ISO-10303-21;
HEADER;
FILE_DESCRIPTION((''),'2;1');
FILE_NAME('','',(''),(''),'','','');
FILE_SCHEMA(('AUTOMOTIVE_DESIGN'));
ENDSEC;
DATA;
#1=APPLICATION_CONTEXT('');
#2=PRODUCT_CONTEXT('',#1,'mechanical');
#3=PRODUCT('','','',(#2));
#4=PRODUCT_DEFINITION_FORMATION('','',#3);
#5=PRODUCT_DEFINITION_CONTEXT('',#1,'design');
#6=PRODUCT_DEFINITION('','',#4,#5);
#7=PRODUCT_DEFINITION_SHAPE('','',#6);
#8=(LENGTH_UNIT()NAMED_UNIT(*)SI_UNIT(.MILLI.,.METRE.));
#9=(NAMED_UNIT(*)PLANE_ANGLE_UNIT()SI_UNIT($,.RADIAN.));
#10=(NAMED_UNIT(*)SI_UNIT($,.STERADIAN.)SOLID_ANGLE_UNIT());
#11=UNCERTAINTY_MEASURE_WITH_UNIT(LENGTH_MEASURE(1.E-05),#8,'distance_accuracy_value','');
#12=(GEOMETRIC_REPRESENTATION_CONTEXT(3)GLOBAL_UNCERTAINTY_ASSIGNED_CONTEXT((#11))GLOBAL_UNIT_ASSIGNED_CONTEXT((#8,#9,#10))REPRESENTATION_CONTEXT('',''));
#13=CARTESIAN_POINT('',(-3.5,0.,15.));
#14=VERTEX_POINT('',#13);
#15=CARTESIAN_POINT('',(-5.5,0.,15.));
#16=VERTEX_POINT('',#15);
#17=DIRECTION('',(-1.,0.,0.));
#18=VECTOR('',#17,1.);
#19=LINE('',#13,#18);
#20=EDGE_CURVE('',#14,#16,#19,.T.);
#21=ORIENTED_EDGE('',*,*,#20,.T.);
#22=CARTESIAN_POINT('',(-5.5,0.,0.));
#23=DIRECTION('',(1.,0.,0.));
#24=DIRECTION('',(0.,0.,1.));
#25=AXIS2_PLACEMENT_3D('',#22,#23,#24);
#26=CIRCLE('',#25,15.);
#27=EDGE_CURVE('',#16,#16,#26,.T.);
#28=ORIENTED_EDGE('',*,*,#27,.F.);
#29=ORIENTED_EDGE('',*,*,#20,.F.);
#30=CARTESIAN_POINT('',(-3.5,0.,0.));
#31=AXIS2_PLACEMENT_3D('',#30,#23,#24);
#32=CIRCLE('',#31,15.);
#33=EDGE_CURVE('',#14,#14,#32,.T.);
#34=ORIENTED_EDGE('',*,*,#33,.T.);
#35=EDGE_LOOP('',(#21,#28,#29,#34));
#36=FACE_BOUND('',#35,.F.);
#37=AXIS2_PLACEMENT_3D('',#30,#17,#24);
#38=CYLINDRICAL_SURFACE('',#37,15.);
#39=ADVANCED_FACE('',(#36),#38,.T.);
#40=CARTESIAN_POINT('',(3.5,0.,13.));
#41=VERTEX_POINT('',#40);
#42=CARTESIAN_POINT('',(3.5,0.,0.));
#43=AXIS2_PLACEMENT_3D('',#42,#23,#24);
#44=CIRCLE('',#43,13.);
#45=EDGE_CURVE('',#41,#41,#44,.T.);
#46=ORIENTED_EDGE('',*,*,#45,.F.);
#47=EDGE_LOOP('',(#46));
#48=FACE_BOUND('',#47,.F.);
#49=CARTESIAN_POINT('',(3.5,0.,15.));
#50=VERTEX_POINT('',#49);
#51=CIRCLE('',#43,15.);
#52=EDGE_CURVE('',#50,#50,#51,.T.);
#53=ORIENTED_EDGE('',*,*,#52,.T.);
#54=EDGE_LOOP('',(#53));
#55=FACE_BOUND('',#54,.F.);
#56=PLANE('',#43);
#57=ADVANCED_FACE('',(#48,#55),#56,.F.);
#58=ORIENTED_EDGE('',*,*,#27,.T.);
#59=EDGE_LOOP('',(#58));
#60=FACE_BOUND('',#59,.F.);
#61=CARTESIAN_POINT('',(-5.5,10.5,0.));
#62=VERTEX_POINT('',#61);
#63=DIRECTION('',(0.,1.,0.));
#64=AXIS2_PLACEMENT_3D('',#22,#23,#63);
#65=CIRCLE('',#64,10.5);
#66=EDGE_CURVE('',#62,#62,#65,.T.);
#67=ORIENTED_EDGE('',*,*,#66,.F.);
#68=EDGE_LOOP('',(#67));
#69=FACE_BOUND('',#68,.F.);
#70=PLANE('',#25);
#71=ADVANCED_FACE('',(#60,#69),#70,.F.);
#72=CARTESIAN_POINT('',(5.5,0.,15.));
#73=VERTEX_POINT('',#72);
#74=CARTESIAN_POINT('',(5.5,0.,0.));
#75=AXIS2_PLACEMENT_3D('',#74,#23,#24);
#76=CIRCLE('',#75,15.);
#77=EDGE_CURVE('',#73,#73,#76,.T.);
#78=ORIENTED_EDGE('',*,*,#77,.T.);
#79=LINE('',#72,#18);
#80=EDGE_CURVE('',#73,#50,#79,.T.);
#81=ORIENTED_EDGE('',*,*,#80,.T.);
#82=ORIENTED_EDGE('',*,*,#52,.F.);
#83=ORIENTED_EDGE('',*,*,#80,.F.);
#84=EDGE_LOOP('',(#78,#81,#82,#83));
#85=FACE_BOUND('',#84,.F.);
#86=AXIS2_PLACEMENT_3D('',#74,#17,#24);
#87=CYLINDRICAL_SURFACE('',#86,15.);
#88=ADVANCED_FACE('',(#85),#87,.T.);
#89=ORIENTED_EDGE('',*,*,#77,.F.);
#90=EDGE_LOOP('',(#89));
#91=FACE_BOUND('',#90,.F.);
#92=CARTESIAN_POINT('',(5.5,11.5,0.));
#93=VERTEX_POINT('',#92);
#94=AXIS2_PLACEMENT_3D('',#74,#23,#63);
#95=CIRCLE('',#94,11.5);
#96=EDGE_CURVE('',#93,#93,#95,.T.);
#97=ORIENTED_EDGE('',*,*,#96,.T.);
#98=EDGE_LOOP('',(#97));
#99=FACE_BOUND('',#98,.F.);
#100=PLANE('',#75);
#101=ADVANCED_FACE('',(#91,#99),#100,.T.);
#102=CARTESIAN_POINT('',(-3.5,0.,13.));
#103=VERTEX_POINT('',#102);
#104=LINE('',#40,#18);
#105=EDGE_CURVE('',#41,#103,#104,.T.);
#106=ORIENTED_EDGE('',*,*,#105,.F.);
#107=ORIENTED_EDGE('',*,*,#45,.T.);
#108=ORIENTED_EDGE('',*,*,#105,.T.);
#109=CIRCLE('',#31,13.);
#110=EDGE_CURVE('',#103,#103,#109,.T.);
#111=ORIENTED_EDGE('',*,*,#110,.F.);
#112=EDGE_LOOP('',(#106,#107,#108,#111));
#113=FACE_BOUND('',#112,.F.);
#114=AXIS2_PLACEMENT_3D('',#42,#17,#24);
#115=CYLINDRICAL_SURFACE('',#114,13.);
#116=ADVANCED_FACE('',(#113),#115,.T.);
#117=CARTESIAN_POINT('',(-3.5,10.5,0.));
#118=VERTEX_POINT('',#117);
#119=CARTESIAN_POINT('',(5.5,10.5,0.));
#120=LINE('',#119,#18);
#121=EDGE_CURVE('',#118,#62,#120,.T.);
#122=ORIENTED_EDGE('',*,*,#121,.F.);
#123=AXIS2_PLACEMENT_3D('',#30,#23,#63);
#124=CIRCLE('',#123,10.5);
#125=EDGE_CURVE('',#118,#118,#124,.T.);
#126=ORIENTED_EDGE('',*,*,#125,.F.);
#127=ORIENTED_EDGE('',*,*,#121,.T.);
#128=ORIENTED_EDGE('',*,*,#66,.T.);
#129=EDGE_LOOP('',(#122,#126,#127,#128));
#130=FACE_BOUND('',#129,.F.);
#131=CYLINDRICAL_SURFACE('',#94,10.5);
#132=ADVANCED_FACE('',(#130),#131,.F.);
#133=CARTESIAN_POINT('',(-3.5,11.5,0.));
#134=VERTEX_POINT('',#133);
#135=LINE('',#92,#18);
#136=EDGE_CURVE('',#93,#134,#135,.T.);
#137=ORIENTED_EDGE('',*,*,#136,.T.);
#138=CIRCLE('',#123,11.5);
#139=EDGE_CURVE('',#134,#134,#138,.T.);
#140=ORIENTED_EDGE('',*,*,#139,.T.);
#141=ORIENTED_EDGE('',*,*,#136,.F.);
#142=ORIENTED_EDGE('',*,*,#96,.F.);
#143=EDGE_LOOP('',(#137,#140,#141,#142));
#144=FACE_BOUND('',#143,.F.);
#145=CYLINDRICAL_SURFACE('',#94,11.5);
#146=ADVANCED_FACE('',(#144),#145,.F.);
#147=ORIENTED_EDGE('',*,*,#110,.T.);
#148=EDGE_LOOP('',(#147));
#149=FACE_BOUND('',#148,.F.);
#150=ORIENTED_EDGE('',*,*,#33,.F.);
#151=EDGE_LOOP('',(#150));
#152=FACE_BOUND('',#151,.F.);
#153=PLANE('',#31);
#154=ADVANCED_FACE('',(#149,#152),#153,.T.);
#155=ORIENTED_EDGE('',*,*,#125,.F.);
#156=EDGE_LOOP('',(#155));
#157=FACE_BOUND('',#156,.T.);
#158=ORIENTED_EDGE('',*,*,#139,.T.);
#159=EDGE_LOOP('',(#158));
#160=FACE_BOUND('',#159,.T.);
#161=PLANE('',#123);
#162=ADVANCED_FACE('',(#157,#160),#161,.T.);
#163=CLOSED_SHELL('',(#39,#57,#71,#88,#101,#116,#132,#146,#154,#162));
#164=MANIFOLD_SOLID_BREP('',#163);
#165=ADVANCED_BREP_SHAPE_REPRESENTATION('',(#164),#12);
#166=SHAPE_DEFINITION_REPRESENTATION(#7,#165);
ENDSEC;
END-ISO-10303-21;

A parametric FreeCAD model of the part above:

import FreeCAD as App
import Part
import Sketcher
Q = App.Units.Quantity

doc = App.newDocument("Part")
body = doc.addObject("PartDesign::Body", "Body")

# Sketch on XZ plane
sketch1 = body.newObject("Sketcher::SketchObject", "Sketch")
sketch1.AttachmentSupport = (doc.getObject("XZ_Plane"), [""])
sketch1.MapMode = "FlatFace"
sketch1.addGeometry([
    Part.LineSegment(App.Vector(-5.5, 15, 0), App.Vector(-5.5, 0, 0)),  # 0
    Part.LineSegment(App.Vector(-5.5, 0, 0), App.Vector(5.5, 0, 0)),  # 1
    Part.LineSegment(App.Vector(5.5, 0, 0), App.Vector(5.5, 15, 0)),  # 2
    Part.LineSegment(App.Vector(5.5, 15, 0), App.Vector(3.5, 15, 0)),  # 3
    Part.LineSegment(App.Vector(3.5, 15, 0), App.Vector(3.5, 13, 0)),  # 4
    Part.LineSegment(App.Vector(3.5, 13, 0), App.Vector(-3.5, 13, 0)),  # 5
    Part.LineSegment(App.Vector(-3.5, 13, 0), App.Vector(-3.5, 15, 0)),  # 6
    Part.LineSegment(App.Vector(-3.5, 15, 0), App.Vector(-5.5, 15, 0)),  # 7
], False)
sketch1.addConstraint([
    Sketcher.Constraint("Coincident", 0, 2, 1, 1),
    Sketcher.Constraint("Coincident", 1, 2, 2, 1),
    Sketcher.Constraint("Coincident", 2, 2, 3, 1),
    Sketcher.Constraint("Coincident", 3, 2, 4, 1),
    Sketcher.Constraint("Coincident", 4, 2, 5, 1),
    Sketcher.Constraint("Coincident", 5, 2, 6, 1),
    Sketcher.Constraint("Coincident", 6, 2, 7, 1),
    Sketcher.Constraint("Coincident", 7, 2, 0, 1),
    Sketcher.Constraint("Vertical", 0),
    Sketcher.Constraint("Horizontal", 1),
    Sketcher.Constraint("Vertical", 2),
    Sketcher.Constraint("Horizontal", 3),
    Sketcher.Constraint("Vertical", 4),
    Sketcher.Constraint("Horizontal", 5),
    Sketcher.Constraint("Vertical", 6),
    Sketcher.Constraint("Horizontal", 7),
    Sketcher.Constraint("Symmetric", 0, 2, 1, 2, -1, 1),
    Sketcher.Constraint("Symmetric", 3, 2, 6, 2, -2),
    Sketcher.Constraint("Equal", 7, 4),
    Sketcher.Constraint("DistanceX", 1, 1, 1, 2, Q("11 mm")),
    Sketcher.Constraint("DistanceX", 3, 2, 3, 1, Q("2 mm")),
    Sketcher.Constraint("DistanceY", 0, 2, 0, 1, Q("15 mm")),
])
revolution = body.newObject("PartDesign::Revolution", "Revolution")
revolution.Profile = sketch1
revolution.ReferenceAxis = (sketch1, ["H_Axis"])
revolution.Angle = 360

# Sketch on YZ plane
sketch2 = body.newObject("Sketcher::SketchObject", "Sketch001")
sketch2.AttachmentSupport = (doc.getObject("YZ_Plane"), [""])
sketch2.MapMode = "FlatFace"
sketch2.AttachmentOffset = App.Placement(App.Vector(0, 0, 5.5), App.Rotation())
sketch2.addGeometry(Part.Circle(App.Vector(0, 0, 0), App.Vector(0, 0, 1), 10), False)
sketch2.addConstraint([
    Sketcher.Constraint("Coincident", 0, 3, -1, 1),
    Sketcher.Constraint("Diameter", 0, Q("21 mm")),
])
pocket1 = body.newObject("PartDesign::Pocket", "Pocket")
pocket1.Profile = sketch2
pocket1.Length = 25

# Sketch on YZ plane
sketch3 = body.newObject("Sketcher::SketchObject", "Sketch002")
sketch3.AttachmentSupport = (doc.getObject("YZ_Plane"), [""])
sketch3.MapMode = "FlatFace"
sketch3.AttachmentOffset = App.Placement(App.Vector(0, 0, 5.5), App.Rotation())
sketch3.addGeometry([
    Part.Circle(App.Vector(0, 0, 0), App.Vector(0, 0, 1), 12),
    Part.Circle(App.Vector(0, 0, 0), App.Vector(0, 0, 1), 10),
], False)
sketch3.addConstraint([
    Sketcher.Constraint("Coincident", 0, 3, -1, 1),
    Sketcher.Constraint("Coincident", 1, 3, -1, 1),
    Sketcher.Constraint("Diameter", 0, Q("23 mm")),
    Sketcher.Constraint("Diameter", 1, Q("21 mm")),
])
pocket2 = body.newObject("PartDesign::Pocket", "Pocket001")
pocket2.Profile = sketch3
pocket2.Length = 9

doc.recompute()
